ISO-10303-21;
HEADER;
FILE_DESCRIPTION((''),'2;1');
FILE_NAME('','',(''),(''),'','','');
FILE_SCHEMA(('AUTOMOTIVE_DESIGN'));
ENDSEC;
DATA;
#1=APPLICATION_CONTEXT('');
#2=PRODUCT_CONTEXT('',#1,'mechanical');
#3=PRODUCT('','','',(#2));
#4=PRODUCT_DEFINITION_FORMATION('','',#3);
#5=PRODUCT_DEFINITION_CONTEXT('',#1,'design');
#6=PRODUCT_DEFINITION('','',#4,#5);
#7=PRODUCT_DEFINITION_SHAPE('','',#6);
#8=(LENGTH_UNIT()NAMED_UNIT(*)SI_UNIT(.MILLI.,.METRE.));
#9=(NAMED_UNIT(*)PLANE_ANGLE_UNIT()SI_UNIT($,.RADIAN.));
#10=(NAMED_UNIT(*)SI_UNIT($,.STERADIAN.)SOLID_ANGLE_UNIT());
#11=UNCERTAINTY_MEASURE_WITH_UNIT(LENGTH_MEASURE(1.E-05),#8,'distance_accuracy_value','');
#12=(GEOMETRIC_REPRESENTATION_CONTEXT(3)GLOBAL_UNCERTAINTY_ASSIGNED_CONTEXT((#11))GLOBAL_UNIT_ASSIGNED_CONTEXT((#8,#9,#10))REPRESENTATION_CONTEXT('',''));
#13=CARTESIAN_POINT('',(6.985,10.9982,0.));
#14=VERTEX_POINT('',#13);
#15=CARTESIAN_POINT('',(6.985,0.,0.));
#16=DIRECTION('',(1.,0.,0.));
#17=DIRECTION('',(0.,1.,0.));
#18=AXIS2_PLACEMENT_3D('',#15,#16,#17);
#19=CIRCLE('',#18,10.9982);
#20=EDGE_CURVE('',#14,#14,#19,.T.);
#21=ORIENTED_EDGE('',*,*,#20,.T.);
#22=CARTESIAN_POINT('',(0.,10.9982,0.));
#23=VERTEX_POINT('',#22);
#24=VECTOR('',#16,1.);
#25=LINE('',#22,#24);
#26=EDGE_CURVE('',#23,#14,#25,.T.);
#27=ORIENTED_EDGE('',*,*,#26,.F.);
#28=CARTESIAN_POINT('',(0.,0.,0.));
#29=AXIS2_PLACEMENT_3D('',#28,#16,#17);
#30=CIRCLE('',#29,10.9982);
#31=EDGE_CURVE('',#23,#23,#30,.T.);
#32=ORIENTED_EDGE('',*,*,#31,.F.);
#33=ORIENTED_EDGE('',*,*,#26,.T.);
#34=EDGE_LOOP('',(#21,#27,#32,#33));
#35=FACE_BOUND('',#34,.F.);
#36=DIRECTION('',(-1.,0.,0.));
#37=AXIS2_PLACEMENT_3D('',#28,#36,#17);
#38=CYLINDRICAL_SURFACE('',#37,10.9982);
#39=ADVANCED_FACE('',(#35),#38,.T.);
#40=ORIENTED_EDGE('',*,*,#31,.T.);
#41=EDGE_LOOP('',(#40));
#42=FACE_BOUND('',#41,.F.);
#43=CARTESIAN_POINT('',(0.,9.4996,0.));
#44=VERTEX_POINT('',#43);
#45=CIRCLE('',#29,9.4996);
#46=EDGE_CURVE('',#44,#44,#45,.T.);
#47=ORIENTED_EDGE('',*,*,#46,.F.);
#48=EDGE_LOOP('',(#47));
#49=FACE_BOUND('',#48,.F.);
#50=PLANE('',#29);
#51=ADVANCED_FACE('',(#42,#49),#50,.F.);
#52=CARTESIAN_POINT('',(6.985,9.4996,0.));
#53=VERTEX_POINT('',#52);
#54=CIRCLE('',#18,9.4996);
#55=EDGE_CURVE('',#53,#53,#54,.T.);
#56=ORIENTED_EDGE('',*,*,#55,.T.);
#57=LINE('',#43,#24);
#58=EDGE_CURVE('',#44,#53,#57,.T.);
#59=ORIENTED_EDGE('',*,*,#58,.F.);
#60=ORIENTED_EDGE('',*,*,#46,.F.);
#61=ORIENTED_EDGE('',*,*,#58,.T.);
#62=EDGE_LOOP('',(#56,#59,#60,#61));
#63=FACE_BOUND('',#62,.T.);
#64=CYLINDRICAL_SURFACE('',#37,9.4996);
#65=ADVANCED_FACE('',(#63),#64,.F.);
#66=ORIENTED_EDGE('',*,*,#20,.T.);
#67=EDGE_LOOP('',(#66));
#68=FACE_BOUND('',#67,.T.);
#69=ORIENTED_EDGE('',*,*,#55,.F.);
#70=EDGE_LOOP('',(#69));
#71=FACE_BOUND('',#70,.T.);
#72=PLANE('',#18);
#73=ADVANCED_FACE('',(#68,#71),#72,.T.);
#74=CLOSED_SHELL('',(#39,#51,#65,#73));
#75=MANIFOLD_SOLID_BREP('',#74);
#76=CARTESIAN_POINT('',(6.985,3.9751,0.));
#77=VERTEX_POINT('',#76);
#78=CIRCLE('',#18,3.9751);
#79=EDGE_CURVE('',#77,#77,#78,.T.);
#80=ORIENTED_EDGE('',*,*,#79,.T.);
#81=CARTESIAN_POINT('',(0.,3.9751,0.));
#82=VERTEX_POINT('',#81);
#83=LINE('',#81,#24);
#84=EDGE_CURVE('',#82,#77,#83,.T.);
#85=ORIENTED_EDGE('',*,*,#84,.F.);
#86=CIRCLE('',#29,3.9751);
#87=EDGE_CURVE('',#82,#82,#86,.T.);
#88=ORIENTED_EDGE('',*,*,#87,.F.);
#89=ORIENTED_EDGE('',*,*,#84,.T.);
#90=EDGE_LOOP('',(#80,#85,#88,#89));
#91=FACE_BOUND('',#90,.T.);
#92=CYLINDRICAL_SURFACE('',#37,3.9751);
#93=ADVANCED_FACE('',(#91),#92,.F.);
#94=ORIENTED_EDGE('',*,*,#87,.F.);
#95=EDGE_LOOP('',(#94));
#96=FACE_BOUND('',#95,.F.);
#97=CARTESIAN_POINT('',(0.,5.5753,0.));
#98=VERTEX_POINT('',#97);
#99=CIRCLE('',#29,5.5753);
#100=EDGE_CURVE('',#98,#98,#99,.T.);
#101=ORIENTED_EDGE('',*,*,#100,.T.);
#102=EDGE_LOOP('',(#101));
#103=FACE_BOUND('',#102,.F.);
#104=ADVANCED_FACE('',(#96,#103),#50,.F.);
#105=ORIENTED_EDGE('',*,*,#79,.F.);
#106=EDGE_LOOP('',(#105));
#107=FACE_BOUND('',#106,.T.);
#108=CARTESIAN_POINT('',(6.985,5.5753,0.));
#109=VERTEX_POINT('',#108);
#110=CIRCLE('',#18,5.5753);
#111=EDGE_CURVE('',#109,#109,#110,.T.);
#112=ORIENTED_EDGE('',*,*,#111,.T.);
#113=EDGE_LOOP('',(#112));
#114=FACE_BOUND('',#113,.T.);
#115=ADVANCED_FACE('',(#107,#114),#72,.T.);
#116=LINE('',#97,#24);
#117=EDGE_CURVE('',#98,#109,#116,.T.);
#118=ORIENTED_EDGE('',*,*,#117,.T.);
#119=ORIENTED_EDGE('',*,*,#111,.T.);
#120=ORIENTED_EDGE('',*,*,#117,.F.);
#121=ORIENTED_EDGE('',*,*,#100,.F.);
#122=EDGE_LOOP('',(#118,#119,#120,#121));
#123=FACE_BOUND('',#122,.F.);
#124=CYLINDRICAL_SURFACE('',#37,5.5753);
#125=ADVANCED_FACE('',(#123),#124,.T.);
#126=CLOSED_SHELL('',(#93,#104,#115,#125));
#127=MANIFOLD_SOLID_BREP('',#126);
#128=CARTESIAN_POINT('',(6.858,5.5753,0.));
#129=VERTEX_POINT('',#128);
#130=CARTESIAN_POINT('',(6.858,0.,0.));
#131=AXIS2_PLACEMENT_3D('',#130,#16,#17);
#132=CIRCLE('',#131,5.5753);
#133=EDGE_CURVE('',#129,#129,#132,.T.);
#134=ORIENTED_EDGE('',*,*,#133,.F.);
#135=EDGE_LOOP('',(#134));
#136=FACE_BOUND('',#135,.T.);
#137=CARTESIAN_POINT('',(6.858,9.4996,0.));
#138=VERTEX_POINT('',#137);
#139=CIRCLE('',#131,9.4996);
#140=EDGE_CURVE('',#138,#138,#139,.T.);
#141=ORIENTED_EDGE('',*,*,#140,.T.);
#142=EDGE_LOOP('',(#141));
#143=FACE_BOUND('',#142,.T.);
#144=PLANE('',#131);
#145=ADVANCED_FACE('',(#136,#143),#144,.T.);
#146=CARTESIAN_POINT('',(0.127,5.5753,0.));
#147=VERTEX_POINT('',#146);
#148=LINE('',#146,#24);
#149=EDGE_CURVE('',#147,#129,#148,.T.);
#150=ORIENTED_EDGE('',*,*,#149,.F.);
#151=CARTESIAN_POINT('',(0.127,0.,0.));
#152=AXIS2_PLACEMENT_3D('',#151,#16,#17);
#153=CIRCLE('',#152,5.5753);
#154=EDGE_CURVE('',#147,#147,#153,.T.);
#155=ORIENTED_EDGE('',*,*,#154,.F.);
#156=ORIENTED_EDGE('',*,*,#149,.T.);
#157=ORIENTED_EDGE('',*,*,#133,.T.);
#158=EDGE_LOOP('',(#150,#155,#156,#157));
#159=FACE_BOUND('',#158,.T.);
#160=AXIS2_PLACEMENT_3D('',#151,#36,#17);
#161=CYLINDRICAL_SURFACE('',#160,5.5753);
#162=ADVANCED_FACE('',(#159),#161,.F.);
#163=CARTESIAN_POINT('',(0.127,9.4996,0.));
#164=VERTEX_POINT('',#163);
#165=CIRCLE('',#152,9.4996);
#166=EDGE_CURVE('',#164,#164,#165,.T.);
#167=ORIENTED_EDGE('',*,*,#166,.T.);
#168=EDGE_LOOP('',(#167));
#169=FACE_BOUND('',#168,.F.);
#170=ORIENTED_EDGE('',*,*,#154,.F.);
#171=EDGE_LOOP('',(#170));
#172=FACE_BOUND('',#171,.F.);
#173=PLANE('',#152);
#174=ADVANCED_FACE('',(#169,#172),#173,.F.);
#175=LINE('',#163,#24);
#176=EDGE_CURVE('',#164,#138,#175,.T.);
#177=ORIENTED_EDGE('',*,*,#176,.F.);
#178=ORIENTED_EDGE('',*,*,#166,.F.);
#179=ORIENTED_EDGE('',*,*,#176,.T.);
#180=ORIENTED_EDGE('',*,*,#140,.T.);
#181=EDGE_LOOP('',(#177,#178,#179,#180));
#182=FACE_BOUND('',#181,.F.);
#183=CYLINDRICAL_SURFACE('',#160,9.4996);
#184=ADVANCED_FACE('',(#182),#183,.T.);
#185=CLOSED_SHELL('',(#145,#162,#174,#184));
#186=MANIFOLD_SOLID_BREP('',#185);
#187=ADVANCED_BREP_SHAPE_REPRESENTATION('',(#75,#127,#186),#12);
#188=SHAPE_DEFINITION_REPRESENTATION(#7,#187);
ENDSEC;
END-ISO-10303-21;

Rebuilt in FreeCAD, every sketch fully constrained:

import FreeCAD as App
import Part
import Sketcher

V = App.Vector
Q = App.Units.Quantity

doc = App.newDocument("Part")
body = doc.addObject("PartDesign::Body", "Body")

# Sketch on YZ plane
sketch1 = body.newObject("Sketcher::SketchObject", "Sketch")
sketch1.AttachmentSupport = (doc.getObject("YZ_Plane"), [""])
sketch1.MapMode = "FlatFace"
sketch1.addGeometry([
    Part.Circle(V(0, 0, 0), V(0, 0, 1), 5.6),
    Part.Circle(V(0, 0, 0), V(0, 0, 1), 4),
], False)
sketch1.addConstraint([
    Sketcher.Constraint("Coincident", 0, 3, -1, 1),
    Sketcher.Constraint("Coincident", 1, 3, -1, 1),
    Sketcher.Constraint("Diameter", 0, Q("0.439 in")),
    Sketcher.Constraint("Diameter", 1, Q("0.313 in")),
])
pad1 = body.newObject("PartDesign::Pad", "Pad")
pad1.Profile = sketch1
pad1.Length = Q("0.275 in")
body2 = doc.addObject("PartDesign::Body", "Body001")

# Sketch on YZ plane
sketch2 = body2.newObject("Sketcher::SketchObject", "Sketch001")
sketch2.AttachmentSupport = (doc.getObject("YZ_Plane001"), [""])
sketch2.MapMode = "FlatFace"
sketch2.addGeometry([
    Part.Circle(V(0, 0, 0), V(0, 0, 1), 11),
    Part.Circle(V(0, 0, 0), V(0, 0, 1), 9),
], False)
sketch2.addConstraint([
    Sketcher.Constraint("Coincident", 0, 3, -1, 1),
    Sketcher.Constraint("Coincident", 1, 3, -1, 1),
    Sketcher.Constraint("Diameter", 0, Q("0.866 in")),
    Sketcher.Constraint("Diameter", 1, Q("0.748 in")),
])
pad2 = body2.newObject("PartDesign::Pad", "Pad001")
pad2.Profile = sketch2
pad2.Length = Q("0.275 in")
body3 = doc.addObject("PartDesign::Body", "Body002")

# Sketch on YZ plane
sketch3 = body3.newObject("Sketcher::SketchObject", "Sketch002")
sketch3.AttachmentSupport = (doc.getObject("YZ_Plane002"), [""])
sketch3.MapMode = "FlatFace"
sketch3.AttachmentOffset = App.Placement(V(0, 0, 0.005 * 25.4), App.Rotation())
sketch3.addGeometry([
    Part.Circle(V(0, 0, 0), V(0, 0, 1), 9),
    Part.Circle(V(0, 0, 0), V(0, 0, 1), 6),
], False)
sketch3.addConstraint([
    Sketcher.Constraint("Coincident", 0, 3, -1, 1),
    Sketcher.Constraint("Coincident", 1, 3, -1, 1),
    Sketcher.Constraint("Diameter", 0, Q("0.748 in")),
    Sketcher.Constraint("Diameter", 1, Q("0.439 in")),
])
pad3 = body3.newObject("PartDesign::Pad", "Pad002")
pad3.Profile = sketch3
pad3.Length = Q("0.265 in")

doc.recompute()
